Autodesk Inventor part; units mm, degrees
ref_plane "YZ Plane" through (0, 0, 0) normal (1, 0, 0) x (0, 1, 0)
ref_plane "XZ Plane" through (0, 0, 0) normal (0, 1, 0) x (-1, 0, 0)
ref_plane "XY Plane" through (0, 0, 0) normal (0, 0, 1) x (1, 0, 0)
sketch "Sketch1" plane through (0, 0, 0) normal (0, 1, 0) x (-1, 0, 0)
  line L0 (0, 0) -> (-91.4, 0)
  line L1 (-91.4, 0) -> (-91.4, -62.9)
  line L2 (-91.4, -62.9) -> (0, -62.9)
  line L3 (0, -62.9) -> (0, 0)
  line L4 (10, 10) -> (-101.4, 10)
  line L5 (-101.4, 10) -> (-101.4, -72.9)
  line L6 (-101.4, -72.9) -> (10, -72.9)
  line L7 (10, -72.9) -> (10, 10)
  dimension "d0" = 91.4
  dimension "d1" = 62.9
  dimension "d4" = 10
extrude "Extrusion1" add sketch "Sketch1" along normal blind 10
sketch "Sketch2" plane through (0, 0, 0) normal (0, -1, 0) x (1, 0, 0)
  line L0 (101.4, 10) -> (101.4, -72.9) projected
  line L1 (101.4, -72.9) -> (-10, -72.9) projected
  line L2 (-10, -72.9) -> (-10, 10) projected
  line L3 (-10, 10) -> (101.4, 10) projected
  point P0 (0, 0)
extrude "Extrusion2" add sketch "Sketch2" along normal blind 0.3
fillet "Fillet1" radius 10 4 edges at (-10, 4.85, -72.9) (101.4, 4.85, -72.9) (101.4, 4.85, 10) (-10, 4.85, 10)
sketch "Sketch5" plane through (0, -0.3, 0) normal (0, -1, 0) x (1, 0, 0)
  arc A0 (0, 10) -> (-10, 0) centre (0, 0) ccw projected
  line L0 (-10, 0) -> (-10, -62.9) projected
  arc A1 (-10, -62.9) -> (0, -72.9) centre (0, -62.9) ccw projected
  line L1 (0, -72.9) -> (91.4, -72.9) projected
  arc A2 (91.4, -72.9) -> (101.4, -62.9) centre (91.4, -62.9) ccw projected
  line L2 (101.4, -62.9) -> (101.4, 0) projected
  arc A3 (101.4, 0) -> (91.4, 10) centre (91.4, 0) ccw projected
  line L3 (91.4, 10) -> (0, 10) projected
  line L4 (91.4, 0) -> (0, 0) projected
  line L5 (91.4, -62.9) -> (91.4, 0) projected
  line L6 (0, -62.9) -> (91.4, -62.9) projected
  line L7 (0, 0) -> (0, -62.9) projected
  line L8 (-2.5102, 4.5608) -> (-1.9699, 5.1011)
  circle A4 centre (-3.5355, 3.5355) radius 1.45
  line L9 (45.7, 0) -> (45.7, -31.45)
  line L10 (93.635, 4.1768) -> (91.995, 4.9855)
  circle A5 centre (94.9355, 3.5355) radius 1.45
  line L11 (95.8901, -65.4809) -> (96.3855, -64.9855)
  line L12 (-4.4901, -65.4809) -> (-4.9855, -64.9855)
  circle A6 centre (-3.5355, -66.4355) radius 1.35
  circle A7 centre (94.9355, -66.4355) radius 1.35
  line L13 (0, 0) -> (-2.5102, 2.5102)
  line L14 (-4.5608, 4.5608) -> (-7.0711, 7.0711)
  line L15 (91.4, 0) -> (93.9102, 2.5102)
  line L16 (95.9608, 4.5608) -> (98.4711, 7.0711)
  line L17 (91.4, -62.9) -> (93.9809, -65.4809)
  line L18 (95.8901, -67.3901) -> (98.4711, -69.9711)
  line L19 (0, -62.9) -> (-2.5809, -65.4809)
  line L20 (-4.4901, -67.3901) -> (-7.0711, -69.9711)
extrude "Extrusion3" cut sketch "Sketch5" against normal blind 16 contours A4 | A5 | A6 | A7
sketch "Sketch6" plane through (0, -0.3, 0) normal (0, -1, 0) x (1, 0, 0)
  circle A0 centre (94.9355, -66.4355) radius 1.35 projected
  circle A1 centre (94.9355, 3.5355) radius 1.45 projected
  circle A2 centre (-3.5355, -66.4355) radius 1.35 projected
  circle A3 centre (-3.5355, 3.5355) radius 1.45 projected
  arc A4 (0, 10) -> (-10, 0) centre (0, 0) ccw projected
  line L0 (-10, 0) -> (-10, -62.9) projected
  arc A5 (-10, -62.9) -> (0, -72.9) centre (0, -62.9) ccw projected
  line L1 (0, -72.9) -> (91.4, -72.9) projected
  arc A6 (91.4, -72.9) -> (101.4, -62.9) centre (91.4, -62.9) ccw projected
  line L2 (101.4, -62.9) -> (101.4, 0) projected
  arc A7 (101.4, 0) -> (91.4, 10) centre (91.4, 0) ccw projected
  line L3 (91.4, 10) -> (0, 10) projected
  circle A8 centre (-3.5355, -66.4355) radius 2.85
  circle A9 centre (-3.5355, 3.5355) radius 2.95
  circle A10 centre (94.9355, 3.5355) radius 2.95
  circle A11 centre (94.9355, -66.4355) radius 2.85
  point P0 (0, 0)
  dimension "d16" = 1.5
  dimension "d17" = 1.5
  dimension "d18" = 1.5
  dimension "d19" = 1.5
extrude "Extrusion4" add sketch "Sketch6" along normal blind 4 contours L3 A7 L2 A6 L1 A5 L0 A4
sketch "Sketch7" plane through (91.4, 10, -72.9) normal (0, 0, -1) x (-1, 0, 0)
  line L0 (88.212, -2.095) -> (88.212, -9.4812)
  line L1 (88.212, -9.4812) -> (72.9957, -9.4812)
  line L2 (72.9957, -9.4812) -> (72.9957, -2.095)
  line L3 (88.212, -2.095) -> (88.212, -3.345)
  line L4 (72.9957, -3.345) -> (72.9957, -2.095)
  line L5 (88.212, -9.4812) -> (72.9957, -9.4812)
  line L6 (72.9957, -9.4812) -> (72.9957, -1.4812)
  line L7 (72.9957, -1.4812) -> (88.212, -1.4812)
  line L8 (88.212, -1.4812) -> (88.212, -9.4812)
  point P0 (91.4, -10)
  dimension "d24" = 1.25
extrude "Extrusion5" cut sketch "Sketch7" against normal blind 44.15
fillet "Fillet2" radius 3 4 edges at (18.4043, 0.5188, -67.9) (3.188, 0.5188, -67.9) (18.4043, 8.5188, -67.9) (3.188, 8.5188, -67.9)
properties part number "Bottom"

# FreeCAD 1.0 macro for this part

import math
import FreeCAD as App
import Part
import Sketcher
Q = App.Units.Quantity


def edges_at(feature, points):
    """Names of the edges that pass closest to the given points."""
    edges = feature.Shape.Edges
    near = lambda p: min(range(len(edges)), key=lambda i: edges[i].distToShape(Part.Vertex(*p))[0])
    return sorted({f"Edge{near(p) + 1}" for p in points})

doc = App.newDocument("Part")
body = doc.addObject("PartDesign::Body", "Body")

sketch1 = body.newObject("Sketcher::SketchObject", "Sketch")
sketch1.AttachmentSupport = (doc.getObject("XZ_Plane"), [""])
sketch1.MapMode = "FlatFace"
sketch1.addGeometry([
    Part.LineSegment(App.Vector(-10, -73, 0), App.Vector(-10, 10, 0)),
    Part.LineSegment(App.Vector(-10, 10, 0), App.Vector(101, 10, 0)),
    Part.LineSegment(App.Vector(101, 10, 0), App.Vector(101, -73, 0)),
    Part.LineSegment(App.Vector(101, -73, 0), App.Vector(-10, -73, 0)),
    Part.LineSegment(App.Vector(91, 0, 0), App.Vector(0, 0, 0)),
    Part.LineSegment(App.Vector(0, 0, 0), App.Vector(0, -63, 0)),
    Part.LineSegment(App.Vector(0, -63, 0), App.Vector(91, -63, 0)),
    Part.LineSegment(App.Vector(91, -63, 0), App.Vector(91, 0, 0)),
], False)
sketch1.addConstraint([
    Sketcher.Constraint("Coincident", 0, 2, 1, 1),
    Sketcher.Constraint("Coincident", 1, 2, 2, 1),
    Sketcher.Constraint("Coincident", 2, 2, 3, 1),
    Sketcher.Constraint("Coincident", 3, 2, 0, 1),
    Sketcher.Constraint("Coincident", 4, 2, 5, 1),
    Sketcher.Constraint("Coincident", 5, 2, 6, 1),
    Sketcher.Constraint("Coincident", 6, 2, 7, 1),
    Sketcher.Constraint("Coincident", 7, 2, 4, 1),
    Sketcher.Constraint("Vertical", 0),
    Sketcher.Constraint("Horizontal", 1),
    Sketcher.Constraint("Vertical", 2),
    Sketcher.Constraint("Horizontal", 3),
    Sketcher.Constraint("Horizontal", 4),
    Sketcher.Constraint("Vertical", 5),
    Sketcher.Constraint("Horizontal", 6),
    Sketcher.Constraint("Vertical", 7),
    Sketcher.Constraint("Coincident", 4, 2, -1, 1),
    Sketcher.Constraint("DistanceX", 4, 2, 4, 1, Q("91.4 mm")),
    Sketcher.Constraint("DistanceY", 5, 2, 5, 1, Q("62.9 mm")),
    Sketcher.Constraint("DistanceX", 0, 2, -1, 1, Q("10 mm")),
    Sketcher.Constraint("DistanceY", -1, 1, 0, 2, Q("10 mm")),
    Sketcher.Constraint("DistanceY", 3, 2, 5, 2, Q("10 mm")),
    Sketcher.Constraint("DistanceX", 6, 2, 2, 2, Q("10 mm")),
])
pad1 = body.newObject("PartDesign::Pad", "Pad")
pad1.Profile = sketch1
pad1.Length = 10
pad1.Reversed = True

sketch2 = body.newObject("Sketcher::SketchObject", "Sketch001")
sketch2.AttachmentSupport = (doc.getObject("XZ_Plane"), [""])
sketch2.MapMode = "FlatFace"
sketch2.addGeometry([
    Part.LineSegment(App.Vector(101, -73, 0), App.Vector(101, 10, 0)),
    Part.LineSegment(App.Vector(101, 10, 0), App.Vector(-10, 10, 0)),
    Part.LineSegment(App.Vector(-10, 10, 0), App.Vector(-10, -73, 0)),
    Part.LineSegment(App.Vector(-10, -73, 0), App.Vector(101, -73, 0)),
], False)
sketch2.addConstraint([
    Sketcher.Constraint("Coincident", 0, 2, 1, 1),
    Sketcher.Constraint("Coincident", 1, 2, 2, 1),
    Sketcher.Constraint("Coincident", 2, 2, 3, 1),
    Sketcher.Constraint("Coincident", 3, 2, 0, 1),
    Sketcher.Constraint("Vertical", 0),
    Sketcher.Constraint("Horizontal", 1),
    Sketcher.Constraint("Vertical", 2),
    Sketcher.Constraint("Horizontal", 3),
    Sketcher.Constraint("DistanceX", 1, 2, 1, 1, Q("111.4 mm")),
    Sketcher.Constraint("DistanceY", 0, 1, 0, 2, Q("82.9 mm")),
    Sketcher.Constraint("DistanceY", -1, 1, 0, 2, Q("10 mm")),
    Sketcher.Constraint("DistanceX", 1, 2, -1, 1, Q("10 mm")),
])
pad2 = body.newObject("PartDesign::Pad", "Pad001")
pad2.Profile = sketch2
pad2.Length = 0.3
doc.recompute()

fillet = body.newObject("PartDesign::Fillet", "Fillet")
fillet.Base = (pad2, edges_at(pad2, [
    (-10, 4.85, -72.9),
    (101.4, 4.85, -72.9),
    (101.4, 4.85, 10),
    (-10, 4.85, 10),
]))
fillet.Radius = 10

sketch3 = body.newObject("Sketcher::SketchObject", "Sketch002")
sketch3.AttachmentSupport = (doc.getObject("XZ_Plane"), [""])
sketch3.MapMode = "FlatFace"
sketch3.AttachmentOffset = App.Placement(App.Vector(0, 0, 0.3), App.Rotation())
sketch3.addGeometry([
    Part.Circle(App.Vector(-3.5, 3.5, 0), App.Vector(0, 0, 1), 1.4),
    Part.Circle(App.Vector(94.9, 3.5, 0), App.Vector(0, 0, 1), 1.4),
    Part.Circle(App.Vector(-3.5, -66.4, 0), App.Vector(0, 0, 1), 1.4),
    Part.Circle(App.Vector(94.9, -66.4, 0), App.Vector(0, 0, 1), 1.4),
], False)
sketch3.addConstraint([
    Sketcher.Constraint("Equal", 0, 1),
    Sketcher.Constraint("Equal", 2, 3),
    Sketcher.Constraint("Horizontal", 0, 3, 1, 3),
    Sketcher.Constraint("Horizontal", 2, 3, 3, 3),
    Sketcher.Constraint("Vertical", 0, 3, 2, 3),
    Sketcher.Constraint("Vertical", 1, 3, 3, 3),
    Sketcher.Constraint("Diameter", 0, Q("2.9 mm")),
    Sketcher.Constraint("Diameter", 2, Q("2.7 mm")),
    Sketcher.Constraint("DistanceX", 0, 3, 1, 3, Q("98.471 mm")),
    Sketcher.Constraint("DistanceY", 2, 3, 0, 3, Q("69.971 mm")),
    Sketcher.Constraint("DistanceX", 0, 3, -1, 1, Q("3.5355 mm")),
    Sketcher.Constraint("DistanceY", -1, 1, 0, 3, Q("3.5355 mm")),
])
pocket1 = body.newObject("PartDesign::Pocket", "Pocket")
pocket1.Profile = sketch3
pocket1.Length = 16

sketch4 = body.newObject("Sketcher::SketchObject", "Sketch003")
sketch4.AttachmentSupport = (doc.getObject("XZ_Plane"), [""])
sketch4.MapMode = "FlatFace"
sketch4.AttachmentOffset = App.Placement(App.Vector(0, 0, 0.3), App.Rotation())
sketch4.addGeometry([
    Part.LineSegment(App.Vector(91.4, 10, 0), App.Vector(0, 10, 0)),
    Part.ArcOfCircle(Part.Circle(App.Vector(0, 0, 0), App.Vector(0, 0, 1), 10), math.radians(90), math.radians(180)),
    Part.LineSegment(App.Vector(-10, 0, 0), App.Vector(-10, -62.9, 0)),
    Part.ArcOfCircle(Part.Circle(App.Vector(0, -62.9, 0), App.Vector(0, 0, 1), 10), math.radians(180), math.radians(270)),
    Part.LineSegment(App.Vector(0, -72.9, 0), App.Vector(91.4, -72.9, 0)),
    Part.ArcOfCircle(Part.Circle(App.Vector(91.4, -62.9, 0), App.Vector(0, 0, 1), 10), math.radians(-90), math.radians(0)),
    Part.LineSegment(App.Vector(101.4, -62.9, 0), App.Vector(101.4, 0, 0)),
    Part.ArcOfCircle(Part.Circle(App.Vector(91.4, 0, 0), App.Vector(0, 0, 1), 10), math.radians(0), math.radians(90)),
    Part.Circle(App.Vector(-3.5, -66.4, 0), App.Vector(0, 0, 1), 2.9),
    Part.Circle(App.Vector(94.9, -66.4, 0), App.Vector(0, 0, 1), 2.9),
    Part.Circle(App.Vector(-3.5, 3.5, 0), App.Vector(0, 0, 1), 3),
    Part.Circle(App.Vector(94.9, 3.5, 0), App.Vector(0, 0, 1), 3),
], False)
sketch4.addConstraint([
    Sketcher.Constraint("Tangent", 0, 2, 1, 1),
    Sketcher.Constraint("Tangent", 1, 2, 2, 1),
    Sketcher.Constraint("Tangent", 2, 2, 3, 1),
    Sketcher.Constraint("Tangent", 3, 2, 4, 1),
    Sketcher.Constraint("Tangent", 4, 2, 5, 1),
    Sketcher.Constraint("Tangent", 5, 2, 6, 1),
    Sketcher.Constraint("Tangent", 6, 2, 7, 1),
    Sketcher.Constraint("Tangent", 7, 2, 0, 1),
    Sketcher.Constraint("Horizontal", 0),
    Sketcher.Constraint("Vertical", 2),
    Sketcher.Constraint("Horizontal", 4),
    Sketcher.Constraint("Vertical", 6),
    Sketcher.Constraint("Coincident", 1, 3, -1, 1),
    Sketcher.Constraint("Equal", 1, 3),
    Sketcher.Constraint("Equal", 3, 5),
    Sketcher.Constraint("Equal", 5, 7),
    Sketcher.Constraint("Equal", 8, 9),
    Sketcher.Constraint("Equal", 10, 11),
    Sketcher.Constraint("Horizontal", 8, 3, 9, 3),
    Sketcher.Constraint("Horizontal", 10, 3, 11, 3),
    Sketcher.Constraint("Vertical", 8, 3, 10, 3),
    Sketcher.Constraint("Vertical", 9, 3, 11, 3),
    Sketcher.Constraint("Radius", 1, Q("10 mm")),
    Sketcher.Constraint("Diameter", 8, Q("5.7 mm")),
    Sketcher.Constraint("Diameter", 10, Q("5.9 mm")),
    Sketcher.Constraint("DistanceX", 0, 2, 0, 1, Q("91.4 mm")),
    Sketcher.Constraint("DistanceY", 2, 2, 2, 1, Q("62.9 mm")),
    Sketcher.Constraint("DistanceX", 8, 3, 9, 3, Q("98.471 mm")),
    Sketcher.Constraint("DistanceY", 8, 3, 10, 3, Q("69.971 mm")),
    Sketcher.Constraint("DistanceX", 8, 3, -1, 1, Q("3.5355 mm")),
    Sketcher.Constraint("DistanceY", 8, 3, -1, 1, Q("66.4355 mm")),
])
pad3 = body.newObject("PartDesign::Pad", "Pad002")
pad3.Profile = sketch4
pad3.Length = 4

sketch5 = body.newObject("Sketcher::SketchObject", "Sketch004")
sketch5.AttachmentSupport = (doc.getObject("XY_Plane"), [""])
sketch5.MapMode = "FlatFace"
sketch5.AttachmentOffset = App.Placement(App.Vector(0, 0, -72.9), App.Rotation())
sketch5.addGeometry([
    Part.LineSegment(App.Vector(3, 1, 0), App.Vector(3, 9, 0)),
    Part.LineSegment(App.Vector(3, 9, 0), App.Vector(18, 9, 0)),
    Part.LineSegment(App.Vector(18, 9, 0), App.Vector(18, 1, 0)),
    Part.LineSegment(App.Vector(18, 1, 0), App.Vector(3, 1, 0)),
], False)
sketch5.addConstraint([
    Sketcher.Constraint("Coincident", 0, 2, 1, 1),
    Sketcher.Constraint("Coincident", 1, 2, 2, 1),
    Sketcher.Constraint("Coincident", 2, 2, 3, 1),
    Sketcher.Constraint("Coincident", 3, 2, 0, 1),
    Sketcher.Constraint("Vertical", 0),
    Sketcher.Constraint("Horizontal", 1),
    Sketcher.Constraint("Vertical", 2),
    Sketcher.Constraint("Horizontal", 3),
    Sketcher.Constraint("DistanceY", 0, 1, 0, 2, Q("8 mm")),
    Sketcher.Constraint("DistanceX", 1, 1, 1, 2, Q("15.2163 mm")),
    Sketcher.Constraint("DistanceX", -1, 1, 0, 2, Q("3.188 mm")),
    Sketcher.Constraint("DistanceY", -1, 1, 0, 2, Q("8.5188 mm")),
])
pocket2 = body.newObject("PartDesign::Pocket", "Pocket001")
pocket2.Profile = sketch5
pocket2.Length = 44.15
pocket2.Reversed = True
doc.recompute()

fillet2 = body.newObject("PartDesign::Fillet", "Fillet001")
fillet2.Base = (pocket2, edges_at(pocket2, [
    (18.404, 0.519, -67.9),
    (3.188, 0.519, -67.9),
    (18.404, 8.519, -67.9),
    (3.188, 8.519, -67.9),
]))
fillet2.Radius = 3

doc.recompute()
